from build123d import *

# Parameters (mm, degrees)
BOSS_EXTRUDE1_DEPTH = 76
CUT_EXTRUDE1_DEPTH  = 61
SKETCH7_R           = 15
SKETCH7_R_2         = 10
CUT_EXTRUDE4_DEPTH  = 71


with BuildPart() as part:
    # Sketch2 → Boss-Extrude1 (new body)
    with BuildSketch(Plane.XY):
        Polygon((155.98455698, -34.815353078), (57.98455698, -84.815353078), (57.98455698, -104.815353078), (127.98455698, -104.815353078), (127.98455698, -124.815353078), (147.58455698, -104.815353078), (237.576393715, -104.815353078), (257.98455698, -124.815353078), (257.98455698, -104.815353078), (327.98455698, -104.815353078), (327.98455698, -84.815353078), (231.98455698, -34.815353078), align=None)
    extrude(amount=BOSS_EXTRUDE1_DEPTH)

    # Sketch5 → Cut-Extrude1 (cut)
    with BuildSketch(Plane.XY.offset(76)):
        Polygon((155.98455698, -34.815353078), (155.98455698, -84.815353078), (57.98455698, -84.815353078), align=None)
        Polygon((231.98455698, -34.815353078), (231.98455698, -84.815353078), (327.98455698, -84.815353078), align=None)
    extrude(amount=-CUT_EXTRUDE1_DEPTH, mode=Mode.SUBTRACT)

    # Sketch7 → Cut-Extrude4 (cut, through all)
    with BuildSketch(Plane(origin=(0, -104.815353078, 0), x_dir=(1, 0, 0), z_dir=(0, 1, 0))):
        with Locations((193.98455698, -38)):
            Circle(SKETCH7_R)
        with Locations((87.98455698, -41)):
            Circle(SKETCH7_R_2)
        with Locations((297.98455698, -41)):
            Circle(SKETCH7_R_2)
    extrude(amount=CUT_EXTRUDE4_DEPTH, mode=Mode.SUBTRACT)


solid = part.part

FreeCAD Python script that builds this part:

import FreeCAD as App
import Part
import Sketcher
from FreeCAD import Vector


def add_polygon(sketch, points):
    """Adds a closed chain of lines whose ends are joined by coincident constraints."""
    first, n = sketch.GeometryCount, len(points)
    for a, b in zip(points, points[1:] + points[:1]):
        sketch.addGeometry(Part.LineSegment(App.Vector(*a, 0), App.Vector(*b, 0)), False)
    for i in range(n):
        sketch.addConstraint(Sketcher.Constraint("Coincident", first + i, 2, first + (i + 1) % n, 1))

doc = App.newDocument("Part")
body = doc.addObject("PartDesign::Body", "Body")

sketch1 = body.newObject("Sketcher::SketchObject", "Sketch")
sketch1.AttachmentSupport = (doc.getObject("XY_Plane"), [""])
sketch1.MapMode = "FlatFace"
add_polygon(sketch1, [(155.984557, -34.815353), (57.984557, -84.815353), (57.984557, -104.815353), (127.984557, -104.815353), (127.984557, -124.815353), (147.584557, -104.815353), (237.576394, -104.815353), (257.984557, -124.815353), (257.984557, -104.815353), (327.984557, -104.815353), (327.984557, -84.815353), (231.984557, -34.815353)])
sketch1.addConstraint(Sketcher.Constraint("Vertical", 1))
sketch1.addConstraint(Sketcher.Constraint("Horizontal", 2))
sketch1.addConstraint(Sketcher.Constraint("Vertical", 3))
sketch1.addConstraint(Sketcher.Constraint("Horizontal", 5))
sketch1.addConstraint(Sketcher.Constraint("Vertical", 7))
sketch1.addConstraint(Sketcher.Constraint("Horizontal", 8))
sketch1.addConstraint(Sketcher.Constraint("Vertical", 9))
sketch1.addConstraint(Sketcher.Constraint("Horizontal", 11))
sketch1.addConstraint(Sketcher.Constraint("Perpendicular", 4, 6))
sketch1.addConstraint(Sketcher.Constraint("Horizontal", 2, 2, 4, 2))
sketch1.addConstraint(Sketcher.Constraint("Horizontal", 3, 2, 6, 2))
sketch1.addConstraint(Sketcher.Constraint("Horizontal", 5, 2, 7, 2))
sketch1.addConstraint(Sketcher.Constraint("Horizontal", 0, 2, 9, 2))
sketch1.addConstraint(Sketcher.Constraint("Equal", 2, 8))
sketch1.addConstraint(Sketcher.Constraint("Equal", 1, 3))
sketch1.addConstraint(Sketcher.Constraint("DistanceX", 2, 1, 2, 2, 70.0))
sketch1.addConstraint(Sketcher.Constraint("DistanceX", 11, 2, 11, 1, 76.0))
sketch1.addConstraint(Sketcher.Constraint("DistanceY", 1, 2, 1, 1, 20.0))
sketch1.addConstraint(Sketcher.Constraint("DistanceX", 3, 2, 6, 2, 130.0))
sketch1.addConstraint(Sketcher.Constraint("DistanceY", 5, 2, 10, 2, 70.0))
sketch1.addConstraint(Sketcher.Constraint("DistanceX", 10, 2, 7, 2, 26.0))
sketch1.addConstraint(Sketcher.Constraint("DistanceX", 2, 2, 4, 2, 19.6))
sketch1.addConstraint(Sketcher.Constraint("DistanceX", -1, 1, 0, 2, 57.984557))
sketch1.addConstraint(Sketcher.Constraint("DistanceY", 0, 2, -1, 1, 84.815353))
pad1 = body.newObject("PartDesign::Pad", "Pad")
pad1.Profile = sketch1
pad1.Length = 76

sketch2 = body.newObject("Sketcher::SketchObject", "Sketch001")
sketch2.AttachmentSupport = (doc.getObject("XY_Plane"), [""])
sketch2.MapMode = "FlatFace"
sketch2.AttachmentOffset = App.Placement(Vector(0, 0, 76), App.Rotation())
add_polygon(sketch2, [(155.984557, -84.815353), (155.984557, -34.815353), (57.984557, -84.815353)])
add_polygon(sketch2, [(231.984557, -34.815353), (231.984557, -84.815353), (327.984557, -84.815353)])
sketch2.addConstraint(Sketcher.Constraint("Vertical", 0))
sketch2.addConstraint(Sketcher.Constraint("Horizontal", 2))
sketch2.addConstraint(Sketcher.Constraint("Vertical", 3))
sketch2.addConstraint(Sketcher.Constraint("Horizontal", 4))
sketch2.addConstraint(Sketcher.Constraint("Horizontal", 2, 2, 3, 2))
sketch2.addConstraint(Sketcher.Constraint("Horizontal", 0, 2, 5, 2))
sketch2.addConstraint(Sketcher.Constraint("DistanceX", 2, 1, 2, 2, 98.0))
sketch2.addConstraint(Sketcher.Constraint("DistanceX", 4, 1, 4, 2, 96.0))
sketch2.addConstraint(Sketcher.Constraint("DistanceY", 0, 1, 0, 2, 50.0))
sketch2.addConstraint(Sketcher.Constraint("DistanceX", 2, 2, 3, 2, 76.0))
sketch2.addConstraint(Sketcher.Constraint("DistanceX", -1, 1, 0, 2, 155.984557))
sketch2.addConstraint(Sketcher.Constraint("DistanceY", 0, 2, -1, 1, 34.815353))
pocket1 = body.newObject("PartDesign::Pocket", "Pocket")
pocket1.Profile = sketch2
pocket1.Length = 61

sketch3 = body.newObject("Sketcher::SketchObject", "Sketch002")
sketch3.AttachmentSupport = (doc.getObject("XZ_Plane"), [""])
sketch3.MapMode = "FlatFace"
sketch3.AttachmentOffset = App.Placement(Vector(0, 0, 104.815353), App.Rotation())
sketch3.addGeometry(Part.Circle(Vector(193.984557, 38, 0), Vector(0, 0, 1), 15), False)
sketch3.addGeometry(Part.Circle(Vector(87.984557, 41, 0), Vector(0, 0, 1), 10), False)
sketch3.addGeometry(Part.Circle(Vector(297.984557, 41, 0), Vector(0, 0, 1), 10), False)
sketch3.addConstraint(Sketcher.Constraint("Equal", 1, 2))
sketch3.addConstraint(Sketcher.Constraint("Horizontal", 1, 3, 2, 3))
sketch3.addConstraint(Sketcher.Constraint("Diameter", 0, 30.0))
sketch3.addConstraint(Sketcher.Constraint("Diameter", 1, 20.0))
sketch3.addConstraint(Sketcher.Constraint("DistanceY", -1, 1, 0, 3, 38.0))
sketch3.addConstraint(Sketcher.Constraint("DistanceY", -1, 1, 1, 3, 41.0))
sketch3.addConstraint(Sketcher.Constraint("DistanceX", 1, 3, 0, 3, 106.0))
sketch3.addConstraint(Sketcher.Constraint("DistanceX", 0, 3, 2, 3, 104.0))
sketch3.addConstraint(Sketcher.Constraint("DistanceX", -1, 1, 0, 3, 193.984557))
pocket2 = body.newObject("PartDesign::Pocket", "Pocket001")
pocket2.Profile = sketch3
pocket2.Type = "ThroughAll"

doc.recompute()
